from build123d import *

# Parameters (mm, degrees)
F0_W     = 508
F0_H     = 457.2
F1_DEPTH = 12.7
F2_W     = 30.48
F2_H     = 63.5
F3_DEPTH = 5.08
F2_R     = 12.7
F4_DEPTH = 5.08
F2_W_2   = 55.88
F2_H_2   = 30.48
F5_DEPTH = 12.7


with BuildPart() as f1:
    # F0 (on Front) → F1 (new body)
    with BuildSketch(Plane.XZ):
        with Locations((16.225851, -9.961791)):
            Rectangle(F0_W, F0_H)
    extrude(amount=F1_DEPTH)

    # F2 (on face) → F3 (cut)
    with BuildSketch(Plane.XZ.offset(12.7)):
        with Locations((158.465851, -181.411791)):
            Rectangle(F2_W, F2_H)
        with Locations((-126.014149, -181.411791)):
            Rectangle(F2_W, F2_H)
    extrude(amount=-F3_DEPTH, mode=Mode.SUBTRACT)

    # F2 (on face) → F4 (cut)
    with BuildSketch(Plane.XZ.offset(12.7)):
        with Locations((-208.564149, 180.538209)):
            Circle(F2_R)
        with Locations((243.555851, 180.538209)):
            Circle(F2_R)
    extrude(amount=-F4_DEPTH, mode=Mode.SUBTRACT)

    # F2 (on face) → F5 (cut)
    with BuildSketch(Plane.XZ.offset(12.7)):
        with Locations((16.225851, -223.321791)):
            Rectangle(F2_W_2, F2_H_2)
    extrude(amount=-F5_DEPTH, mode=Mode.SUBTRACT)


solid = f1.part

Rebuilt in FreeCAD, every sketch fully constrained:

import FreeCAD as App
import Part
import Sketcher
Q = App.Units.Quantity


def add_polygon(sketch, points):
    """Adds a closed chain of lines whose ends are joined by coincident constraints."""
    first, n = sketch.GeometryCount, len(points)
    for a, b in zip(points, points[1:] + points[:1]):
        sketch.addGeometry(Part.LineSegment(App.Vector(*a, 0), App.Vector(*b, 0)), False)
    for i in range(n):
        sketch.addConstraint(Sketcher.Constraint("Coincident", first + i, 2, first + (i + 1) % n, 1))

doc = App.newDocument("Part")
body = doc.addObject("PartDesign::Body", "Body")

sketch1 = body.newObject("Sketcher::SketchObject", "Sketch")
sketch1.AttachmentSupport = (doc.getObject("XZ_Plane"), [""])
sketch1.MapMode = "FlatFace"
add_polygon(sketch1, [(-238, 219), (-238, -239), (270, -239), (270, 219)])
sketch1.addConstraint(Sketcher.Constraint("Vertical", 0))
sketch1.addConstraint(Sketcher.Constraint("Horizontal", 1))
sketch1.addConstraint(Sketcher.Constraint("Vertical", 2))
sketch1.addConstraint(Sketcher.Constraint("Horizontal", 3))
sketch1.addConstraint(Sketcher.Constraint("DistanceX", 1, 1, 1, 2, Q("20 in")))
sketch1.addConstraint(Sketcher.Constraint("DistanceY", 0, 2, 0, 1, Q("18 in")))
sketch1.addConstraint(Sketcher.Constraint("DistanceX", 0, 2, -1, 1, 237.774149))
sketch1.addConstraint(Sketcher.Constraint("DistanceY", 0, 2, -1, 1, 238.561791))
pad1 = body.newObject("PartDesign::Pad", "Pad")
pad1.Profile = sketch1
pad1.Length = Q("0.5 in")

sketch2 = body.newObject("Sketcher::SketchObject", "Sketch001")
sketch2.AttachmentSupport = (doc.getObject("XZ_Plane"), [""])
sketch2.MapMode = "FlatFace"
sketch2.AttachmentOffset = App.Placement(App.Vector(0, 0, 0.5 * 25.4), App.Rotation())
add_polygon(sketch2, [(143, -150), (143, -213), (174, -213), (174, -150)])
add_polygon(sketch2, [(-141, -150), (-141, -213), (-111, -213), (-111, -150)])
sketch2.addConstraint(Sketcher.Constraint("Vertical", 0))
sketch2.addConstraint(Sketcher.Constraint("Horizontal", 1))
sketch2.addConstraint(Sketcher.Constraint("Vertical", 2))
sketch2.addConstraint(Sketcher.Constraint("Horizontal", 3))
sketch2.addConstraint(Sketcher.Constraint("Vertical", 4))
sketch2.addConstraint(Sketcher.Constraint("Horizontal", 5))
sketch2.addConstraint(Sketcher.Constraint("Vertical", 6))
sketch2.addConstraint(Sketcher.Constraint("Horizontal", 7))
sketch2.addConstraint(Sketcher.Constraint("Horizontal", 1, 2, 4, 2))
sketch2.addConstraint(Sketcher.Constraint("Horizontal", 3, 2, 6, 2))
sketch2.addConstraint(Sketcher.Constraint("Equal", 3, 5))
sketch2.addConstraint(Sketcher.Constraint("DistanceX", 1, 1, 1, 2, Q("1.2 in")))
sketch2.addConstraint(Sketcher.Constraint("DistanceY", 0, 2, 0, 1, Q("2.5 in")))
sketch2.addConstraint(Sketcher.Constraint("DistanceX", 5, 2, 0, 2, Q("10 in")))
sketch2.addConstraint(Sketcher.Constraint("DistanceX", -1, 1, 0, 2, 143.225851))
sketch2.addConstraint(Sketcher.Constraint("DistanceY", 0, 2, -1, 1, 213.161791))
pocket1 = body.newObject("PartDesign::Pocket", "Pocket")
pocket1.Profile = sketch2
pocket1.Length = Q("0.2 in")

sketch3 = body.newObject("Sketcher::SketchObject", "Sketch002")
sketch3.AttachmentSupport = (doc.getObject("XZ_Plane"), [""])
sketch3.MapMode = "FlatFace"
sketch3.AttachmentOffset = App.Placement(App.Vector(0, 0, 0.5 * 25.4), App.Rotation())
sketch3.addGeometry(Part.Circle(App.Vector(-209, 181, 0), App.Vector(0, 0, 1), 13), False)
sketch3.addGeometry(Part.Circle(App.Vector(244, 181, 0), App.Vector(0, 0, 1), 13), False)
sketch3.addConstraint(Sketcher.Constraint("Equal", 0, 1))
sketch3.addConstraint(Sketcher.Constraint("Horizontal", 0, 3, 1, 3))
sketch3.addConstraint(Sketcher.Constraint("Diameter", 0, Q("1 in")))
sketch3.addConstraint(Sketcher.Constraint("DistanceX", 0, 3, 1, 3, Q("17.8 in")))
sketch3.addConstraint(Sketcher.Constraint("DistanceX", 0, 3, -1, 1, 208.564149))
sketch3.addConstraint(Sketcher.Constraint("DistanceY", -1, 1, 0, 3, 180.538209))
pocket2 = body.newObject("PartDesign::Pocket", "Pocket001")
pocket2.Profile = sketch3
pocket2.Length = Q("0.2 in")

sketch4 = body.newObject("Sketcher::SketchObject", "Sketch003")
sketch4.AttachmentSupport = (doc.getObject("XZ_Plane"), [""])
sketch4.MapMode = "FlatFace"
sketch4.AttachmentOffset = App.Placement(App.Vector(0, 0, 0.5 * 25.4), App.Rotation())
add_polygon(sketch4, [(-12, -208), (-12, -239), (44, -239), (44, -208)])
sketch4.addConstraint(Sketcher.Constraint("Vertical", 0))
sketch4.addConstraint(Sketcher.Constraint("Horizontal", 1))
sketch4.addConstraint(Sketcher.Constraint("Vertical", 2))
sketch4.addConstraint(Sketcher.Constraint("Horizontal", 3))
sketch4.addConstraint(Sketcher.Constraint("DistanceX", 1, 1, 1, 2, Q("2.2 in")))
sketch4.addConstraint(Sketcher.Constraint("DistanceY", 0, 2, 0, 1, Q("1.2 in")))
sketch4.addConstraint(Sketcher.Constraint("DistanceX", 0, 2, -1, 1, 11.714149))
sketch4.addConstraint(Sketcher.Constraint("DistanceY", 0, 2, -1, 1, 238.561791))
pocket3 = body.newObject("PartDesign::Pocket", "Pocket002")
pocket3.Profile = sketch4
pocket3.Length = Q("0.5 in")

doc.recompute()
